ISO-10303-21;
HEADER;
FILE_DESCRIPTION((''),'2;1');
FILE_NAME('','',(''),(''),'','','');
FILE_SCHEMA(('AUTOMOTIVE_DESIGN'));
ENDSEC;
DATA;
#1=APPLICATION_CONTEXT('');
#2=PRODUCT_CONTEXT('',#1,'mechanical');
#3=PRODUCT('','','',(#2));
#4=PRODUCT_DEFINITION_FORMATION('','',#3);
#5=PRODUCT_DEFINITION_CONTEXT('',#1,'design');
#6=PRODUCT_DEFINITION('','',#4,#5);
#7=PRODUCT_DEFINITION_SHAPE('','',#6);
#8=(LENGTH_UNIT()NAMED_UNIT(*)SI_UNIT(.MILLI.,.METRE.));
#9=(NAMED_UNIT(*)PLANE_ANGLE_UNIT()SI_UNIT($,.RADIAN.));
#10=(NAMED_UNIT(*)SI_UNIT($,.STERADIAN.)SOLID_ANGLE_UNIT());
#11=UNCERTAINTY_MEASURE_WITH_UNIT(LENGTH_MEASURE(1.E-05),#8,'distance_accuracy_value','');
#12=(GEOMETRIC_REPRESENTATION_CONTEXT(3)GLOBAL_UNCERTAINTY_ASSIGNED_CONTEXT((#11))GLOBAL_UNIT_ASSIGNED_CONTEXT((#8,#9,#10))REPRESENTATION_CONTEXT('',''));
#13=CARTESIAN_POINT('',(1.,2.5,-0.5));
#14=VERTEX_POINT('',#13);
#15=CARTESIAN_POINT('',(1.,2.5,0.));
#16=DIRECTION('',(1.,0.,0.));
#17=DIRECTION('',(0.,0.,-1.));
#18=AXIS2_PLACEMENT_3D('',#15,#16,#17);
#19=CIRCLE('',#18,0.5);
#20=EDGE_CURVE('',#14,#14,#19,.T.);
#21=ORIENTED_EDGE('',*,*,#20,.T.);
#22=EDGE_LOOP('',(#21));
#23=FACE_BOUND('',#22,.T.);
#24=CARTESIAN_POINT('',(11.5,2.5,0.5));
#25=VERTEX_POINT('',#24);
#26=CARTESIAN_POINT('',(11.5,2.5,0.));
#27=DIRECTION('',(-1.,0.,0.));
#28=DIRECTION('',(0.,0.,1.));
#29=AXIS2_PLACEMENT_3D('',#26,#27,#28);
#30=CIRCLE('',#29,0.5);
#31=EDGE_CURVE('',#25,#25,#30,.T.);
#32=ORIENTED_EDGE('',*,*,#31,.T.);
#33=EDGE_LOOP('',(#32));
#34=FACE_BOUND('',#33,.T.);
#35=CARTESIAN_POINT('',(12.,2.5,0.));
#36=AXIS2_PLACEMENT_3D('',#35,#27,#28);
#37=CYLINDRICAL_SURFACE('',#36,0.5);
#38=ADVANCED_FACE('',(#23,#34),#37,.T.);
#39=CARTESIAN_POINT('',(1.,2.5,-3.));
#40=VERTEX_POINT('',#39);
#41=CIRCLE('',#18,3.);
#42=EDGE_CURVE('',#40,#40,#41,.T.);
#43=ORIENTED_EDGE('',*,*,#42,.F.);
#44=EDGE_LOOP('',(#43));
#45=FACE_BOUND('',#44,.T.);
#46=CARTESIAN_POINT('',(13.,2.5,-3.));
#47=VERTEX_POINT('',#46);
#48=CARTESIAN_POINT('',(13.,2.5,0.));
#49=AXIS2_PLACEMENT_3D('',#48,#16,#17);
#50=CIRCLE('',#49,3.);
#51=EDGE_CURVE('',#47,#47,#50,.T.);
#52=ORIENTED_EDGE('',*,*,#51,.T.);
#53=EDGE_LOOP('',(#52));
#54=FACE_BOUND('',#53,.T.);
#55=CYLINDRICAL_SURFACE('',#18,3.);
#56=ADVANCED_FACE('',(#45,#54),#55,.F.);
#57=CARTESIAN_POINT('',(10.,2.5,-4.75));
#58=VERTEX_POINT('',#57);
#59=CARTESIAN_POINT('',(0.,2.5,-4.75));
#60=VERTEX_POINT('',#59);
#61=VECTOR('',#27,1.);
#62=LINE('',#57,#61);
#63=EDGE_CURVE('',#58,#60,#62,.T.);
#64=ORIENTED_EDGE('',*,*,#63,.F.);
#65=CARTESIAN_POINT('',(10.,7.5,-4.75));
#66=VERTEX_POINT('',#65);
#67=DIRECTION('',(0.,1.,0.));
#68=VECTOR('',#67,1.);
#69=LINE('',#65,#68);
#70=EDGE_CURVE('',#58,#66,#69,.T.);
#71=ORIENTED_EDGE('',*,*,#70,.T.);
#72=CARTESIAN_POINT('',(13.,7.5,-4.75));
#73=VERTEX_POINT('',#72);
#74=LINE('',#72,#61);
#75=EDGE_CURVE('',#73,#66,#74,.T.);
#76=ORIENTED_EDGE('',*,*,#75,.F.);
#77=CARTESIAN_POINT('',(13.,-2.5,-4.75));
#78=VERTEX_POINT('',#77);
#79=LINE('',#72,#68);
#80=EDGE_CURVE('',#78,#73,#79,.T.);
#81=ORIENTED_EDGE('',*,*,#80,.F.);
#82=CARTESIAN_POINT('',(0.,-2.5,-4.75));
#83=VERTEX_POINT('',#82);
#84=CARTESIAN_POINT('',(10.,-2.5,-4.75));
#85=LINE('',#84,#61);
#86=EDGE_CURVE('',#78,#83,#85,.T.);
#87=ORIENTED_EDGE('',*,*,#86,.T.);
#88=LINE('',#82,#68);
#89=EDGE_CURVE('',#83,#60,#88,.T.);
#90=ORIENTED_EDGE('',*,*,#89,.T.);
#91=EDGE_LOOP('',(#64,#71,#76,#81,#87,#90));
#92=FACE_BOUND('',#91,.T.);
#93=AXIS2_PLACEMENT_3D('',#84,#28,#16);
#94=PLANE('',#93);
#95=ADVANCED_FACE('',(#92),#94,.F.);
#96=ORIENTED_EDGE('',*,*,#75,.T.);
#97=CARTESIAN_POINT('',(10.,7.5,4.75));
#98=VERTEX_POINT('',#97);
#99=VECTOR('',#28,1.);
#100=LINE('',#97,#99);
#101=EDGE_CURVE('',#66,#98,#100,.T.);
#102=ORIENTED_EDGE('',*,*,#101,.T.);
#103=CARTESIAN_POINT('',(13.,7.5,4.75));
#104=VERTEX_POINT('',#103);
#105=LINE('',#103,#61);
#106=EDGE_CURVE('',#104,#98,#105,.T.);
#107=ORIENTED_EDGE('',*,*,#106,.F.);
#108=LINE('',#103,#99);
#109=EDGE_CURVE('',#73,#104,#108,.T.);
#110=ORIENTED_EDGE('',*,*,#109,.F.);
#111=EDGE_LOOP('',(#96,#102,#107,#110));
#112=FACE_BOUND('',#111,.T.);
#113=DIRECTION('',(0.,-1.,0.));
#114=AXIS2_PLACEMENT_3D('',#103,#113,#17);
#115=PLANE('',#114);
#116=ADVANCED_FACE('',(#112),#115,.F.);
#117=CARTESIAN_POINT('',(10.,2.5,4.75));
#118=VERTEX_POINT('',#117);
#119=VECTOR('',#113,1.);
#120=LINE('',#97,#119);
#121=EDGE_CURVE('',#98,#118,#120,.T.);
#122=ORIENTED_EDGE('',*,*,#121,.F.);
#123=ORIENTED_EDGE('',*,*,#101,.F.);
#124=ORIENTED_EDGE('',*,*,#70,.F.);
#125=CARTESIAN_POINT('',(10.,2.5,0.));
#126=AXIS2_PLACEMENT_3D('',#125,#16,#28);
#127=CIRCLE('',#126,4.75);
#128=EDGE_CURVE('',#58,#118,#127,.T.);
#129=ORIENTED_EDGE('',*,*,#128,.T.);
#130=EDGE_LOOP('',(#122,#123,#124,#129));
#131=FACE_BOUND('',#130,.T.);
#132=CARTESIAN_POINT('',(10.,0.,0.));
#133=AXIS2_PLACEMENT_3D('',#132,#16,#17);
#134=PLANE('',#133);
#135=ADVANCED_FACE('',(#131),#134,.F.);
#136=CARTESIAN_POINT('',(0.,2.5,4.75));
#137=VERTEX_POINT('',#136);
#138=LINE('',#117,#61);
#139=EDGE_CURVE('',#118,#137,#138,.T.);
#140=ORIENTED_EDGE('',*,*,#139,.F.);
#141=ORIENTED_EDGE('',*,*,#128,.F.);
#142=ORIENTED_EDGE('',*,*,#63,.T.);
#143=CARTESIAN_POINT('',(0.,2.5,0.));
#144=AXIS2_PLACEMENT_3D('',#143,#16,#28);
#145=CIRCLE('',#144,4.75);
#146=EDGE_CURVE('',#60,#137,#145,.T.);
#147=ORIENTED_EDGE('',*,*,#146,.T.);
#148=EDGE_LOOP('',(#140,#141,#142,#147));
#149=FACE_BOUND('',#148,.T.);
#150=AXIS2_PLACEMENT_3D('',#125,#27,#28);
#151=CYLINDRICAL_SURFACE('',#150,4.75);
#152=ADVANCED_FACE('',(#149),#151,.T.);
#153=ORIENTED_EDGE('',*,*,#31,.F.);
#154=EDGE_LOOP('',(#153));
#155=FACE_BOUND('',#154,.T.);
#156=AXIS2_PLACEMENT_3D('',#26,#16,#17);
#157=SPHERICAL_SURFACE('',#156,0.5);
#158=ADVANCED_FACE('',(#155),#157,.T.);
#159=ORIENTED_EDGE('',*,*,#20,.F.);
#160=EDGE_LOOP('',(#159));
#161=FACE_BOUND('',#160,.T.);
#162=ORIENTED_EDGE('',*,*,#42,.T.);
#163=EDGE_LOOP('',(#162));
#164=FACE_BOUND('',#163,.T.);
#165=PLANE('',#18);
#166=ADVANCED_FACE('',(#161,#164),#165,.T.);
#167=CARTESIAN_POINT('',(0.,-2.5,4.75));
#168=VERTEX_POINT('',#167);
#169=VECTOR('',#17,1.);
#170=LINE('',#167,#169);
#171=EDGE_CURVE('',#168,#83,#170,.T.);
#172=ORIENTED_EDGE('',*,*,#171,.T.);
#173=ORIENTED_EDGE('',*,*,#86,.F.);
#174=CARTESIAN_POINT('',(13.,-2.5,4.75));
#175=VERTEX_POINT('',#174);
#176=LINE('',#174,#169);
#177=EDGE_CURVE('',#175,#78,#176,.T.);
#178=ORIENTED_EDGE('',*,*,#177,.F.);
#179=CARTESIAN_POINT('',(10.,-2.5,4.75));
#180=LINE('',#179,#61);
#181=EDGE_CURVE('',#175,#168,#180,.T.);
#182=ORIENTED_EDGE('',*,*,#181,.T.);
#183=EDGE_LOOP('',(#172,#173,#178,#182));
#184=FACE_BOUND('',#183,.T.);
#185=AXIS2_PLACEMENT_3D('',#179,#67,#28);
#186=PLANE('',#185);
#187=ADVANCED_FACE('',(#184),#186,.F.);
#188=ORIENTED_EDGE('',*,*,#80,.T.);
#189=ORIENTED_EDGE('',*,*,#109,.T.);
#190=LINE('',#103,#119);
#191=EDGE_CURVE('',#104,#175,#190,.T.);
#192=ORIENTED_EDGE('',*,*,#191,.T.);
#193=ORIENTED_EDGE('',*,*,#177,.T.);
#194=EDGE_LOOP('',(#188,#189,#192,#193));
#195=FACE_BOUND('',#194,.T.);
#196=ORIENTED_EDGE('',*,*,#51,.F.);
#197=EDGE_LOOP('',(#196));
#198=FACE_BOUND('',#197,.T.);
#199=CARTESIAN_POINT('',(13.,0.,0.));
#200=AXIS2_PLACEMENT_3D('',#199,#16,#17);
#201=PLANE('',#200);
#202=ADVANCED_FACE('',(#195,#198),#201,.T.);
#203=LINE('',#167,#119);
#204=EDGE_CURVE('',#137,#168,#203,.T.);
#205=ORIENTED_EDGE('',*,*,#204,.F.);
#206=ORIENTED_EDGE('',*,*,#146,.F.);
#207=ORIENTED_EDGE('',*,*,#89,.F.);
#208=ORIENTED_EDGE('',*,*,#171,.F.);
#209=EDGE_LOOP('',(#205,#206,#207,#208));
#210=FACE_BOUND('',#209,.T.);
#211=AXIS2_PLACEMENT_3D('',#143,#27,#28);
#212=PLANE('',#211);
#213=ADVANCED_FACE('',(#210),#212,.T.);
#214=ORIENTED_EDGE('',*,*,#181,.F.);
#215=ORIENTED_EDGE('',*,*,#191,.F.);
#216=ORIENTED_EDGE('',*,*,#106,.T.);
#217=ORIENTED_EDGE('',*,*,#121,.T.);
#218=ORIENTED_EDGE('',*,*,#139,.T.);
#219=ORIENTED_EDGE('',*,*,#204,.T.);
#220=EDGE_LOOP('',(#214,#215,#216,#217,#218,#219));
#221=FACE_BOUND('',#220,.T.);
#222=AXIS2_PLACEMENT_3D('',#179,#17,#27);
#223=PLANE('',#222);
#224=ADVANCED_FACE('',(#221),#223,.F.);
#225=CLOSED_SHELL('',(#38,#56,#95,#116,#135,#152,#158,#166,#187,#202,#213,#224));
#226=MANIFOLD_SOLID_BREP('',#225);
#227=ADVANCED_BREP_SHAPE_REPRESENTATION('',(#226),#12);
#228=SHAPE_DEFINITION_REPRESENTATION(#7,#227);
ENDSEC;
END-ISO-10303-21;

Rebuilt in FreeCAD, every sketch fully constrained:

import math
import FreeCAD as App
import Part
import Sketcher


def edges_at(feature, points):
    """Names of the edges that pass closest to the given points."""
    edges = feature.Shape.Edges
    near = lambda p: min(range(len(edges)), key=lambda i: edges[i].distToShape(Part.Vertex(*p))[0])
    return sorted({f"Edge{near(p) + 1}" for p in points})


def add_polygon(sketch, points):
    """Adds a closed chain of lines whose ends are joined by coincident constraints."""
    first, n = sketch.GeometryCount, len(points)
    for a, b in zip(points, points[1:] + points[:1]):
        sketch.addGeometry(Part.LineSegment(App.Vector(*a, 0), App.Vector(*b, 0)), False)
    for i in range(n):
        sketch.addConstraint(Sketcher.Constraint("Coincident", first + i, 2, first + (i + 1) % n, 1))

doc = App.newDocument("Part")
body = doc.addObject("PartDesign::Body", "Body")

# Sketch on YZ plane
sketch1 = doc.addObject("Sketcher::SketchObject", "Sketch")
body.addObject(sketch1)
sketch1.AttachmentSupport = (doc.YZ_Plane, [""])
sketch1.MapMode = "FlatFace"
sketch1.addGeometry([
    Part.LineSegment(App.Vector(-2.5, 4.8, 0), App.Vector(-2.5, -4.8, 0)),
    Part.LineSegment(App.Vector(-2.5, -4.8, 0), App.Vector(2.5, -4.8, 0)),
    Part.ArcOfCircle(Part.Circle(App.Vector(2.5, 0, 0), App.Vector(0, 0, 1), 4.8), math.radians(-90), math.radians(90)),
    Part.LineSegment(App.Vector(2.5, 4.8, 0), App.Vector(-2.5, 4.8, 0)),
], False)
sketch1.addConstraint([
    Sketcher.Constraint("Coincident", 0, 2, 1, 1),
    Sketcher.Constraint("Tangent", 1, 2, 2, 1),
    Sketcher.Constraint("Tangent", 2, 2, 3, 1),
    Sketcher.Constraint("Coincident", 3, 2, 0, 1),
    Sketcher.Constraint("Vertical", 0),
    Sketcher.Constraint("Horizontal", 1),
    Sketcher.Constraint("Horizontal", 3),
    Sketcher.Constraint("Symmetric", 0, 2, 2, 2, -1, 1),
    Sketcher.Constraint("DistanceX", 1, 1, 1, 2, 5.0),
    Sketcher.Constraint("Radius", 2, 4.75),
])
pad1 = doc.addObject("PartDesign::Pad", "Pad")
body.addObject(pad1)
pad1.Profile = sketch1
pad1.Length = 10

# Sketch on YZ plane
sketch2 = doc.addObject("Sketcher::SketchObject", "Sketch001")
body.addObject(sketch2)
sketch2.AttachmentSupport = (doc.YZ_Plane, [""])
sketch2.MapMode = "FlatFace"
sketch2.AttachmentOffset = App.Placement(App.Vector(0, 0, 10), App.Rotation())
add_polygon(sketch2, [(8, 5), (-2, 5), (-2, -5), (8, -5)])  # lines 0-3
sketch2.addConstraint([
    Sketcher.Constraint("Horizontal", 0),
    Sketcher.Constraint("Vertical", 1),
    Sketcher.Constraint("Horizontal", 2),
    Sketcher.Constraint("Vertical", 3),
    Sketcher.Constraint("DistanceX", 0, 2, 0, 1, 10.0),
    Sketcher.Constraint("DistanceY", 1, 2, 1, 1, 9.5),
    Sketcher.Constraint("DistanceX", 0, 2, -1, 1, 2.5),
    Sketcher.Constraint("DistanceY", -1, 1, 0, 2, 4.75),
])
pad2 = doc.addObject("PartDesign::Pad", "Pad001")
body.addObject(pad2)
pad2.Profile = sketch2
pad2.Length = 3

# Sketch on YZ plane
sketch3 = doc.addObject("Sketcher::SketchObject", "Sketch002")
body.addObject(sketch3)
sketch3.AttachmentSupport = (doc.YZ_Plane, [""])
sketch3.MapMode = "FlatFace"
sketch3.AttachmentOffset = App.Placement(App.Vector(0, 0, 13), App.Rotation())
sketch3.addGeometry(Part.Circle(App.Vector(2.5, 0, 0), App.Vector(0, 0, 1), 3), False)
sketch3.addConstraint([
    Sketcher.Constraint("PointOnObject", 0, 3, -1),
    Sketcher.Constraint("Diameter", 0, 6.0),
    Sketcher.Constraint("DistanceX", -1, 1, 0, 3, 2.5),
])
pocket1 = doc.addObject("PartDesign::Pocket", "Pocket")
body.addObject(pocket1)
pocket1.Profile = sketch3
pocket1.Length = 12

# Sketch on YZ plane
sketch4 = doc.addObject("Sketcher::SketchObject", "Sketch003")
body.addObject(sketch4)
sketch4.AttachmentSupport = (doc.YZ_Plane, [""])
sketch4.MapMode = "FlatFace"
sketch4.AttachmentOffset = App.Placement(App.Vector(0, 0, 1), App.Rotation())
sketch4.addGeometry(Part.Circle(App.Vector(2.5, 0, 0), App.Vector(0, 0, 1), 0.5), False)
sketch4.addConstraint([
    Sketcher.Constraint("PointOnObject", 0, 3, -1),
    Sketcher.Constraint("Diameter", 0, 1.0),
    Sketcher.Constraint("DistanceX", -1, 1, 0, 3, 2.5),
])
pad3 = doc.addObject("PartDesign::Pad", "Pad002")
body.addObject(pad3)
pad3.Profile = sketch4
pad3.Length = 11
doc.recompute()

fillet = doc.addObject("PartDesign::Fillet", "Fillet")
body.addObject(fillet)
fillet.Base = (pad3, edges_at(pad3, [(12, 2.5, 0.5)]))
fillet.Radius = 0.5

doc.recompute()
